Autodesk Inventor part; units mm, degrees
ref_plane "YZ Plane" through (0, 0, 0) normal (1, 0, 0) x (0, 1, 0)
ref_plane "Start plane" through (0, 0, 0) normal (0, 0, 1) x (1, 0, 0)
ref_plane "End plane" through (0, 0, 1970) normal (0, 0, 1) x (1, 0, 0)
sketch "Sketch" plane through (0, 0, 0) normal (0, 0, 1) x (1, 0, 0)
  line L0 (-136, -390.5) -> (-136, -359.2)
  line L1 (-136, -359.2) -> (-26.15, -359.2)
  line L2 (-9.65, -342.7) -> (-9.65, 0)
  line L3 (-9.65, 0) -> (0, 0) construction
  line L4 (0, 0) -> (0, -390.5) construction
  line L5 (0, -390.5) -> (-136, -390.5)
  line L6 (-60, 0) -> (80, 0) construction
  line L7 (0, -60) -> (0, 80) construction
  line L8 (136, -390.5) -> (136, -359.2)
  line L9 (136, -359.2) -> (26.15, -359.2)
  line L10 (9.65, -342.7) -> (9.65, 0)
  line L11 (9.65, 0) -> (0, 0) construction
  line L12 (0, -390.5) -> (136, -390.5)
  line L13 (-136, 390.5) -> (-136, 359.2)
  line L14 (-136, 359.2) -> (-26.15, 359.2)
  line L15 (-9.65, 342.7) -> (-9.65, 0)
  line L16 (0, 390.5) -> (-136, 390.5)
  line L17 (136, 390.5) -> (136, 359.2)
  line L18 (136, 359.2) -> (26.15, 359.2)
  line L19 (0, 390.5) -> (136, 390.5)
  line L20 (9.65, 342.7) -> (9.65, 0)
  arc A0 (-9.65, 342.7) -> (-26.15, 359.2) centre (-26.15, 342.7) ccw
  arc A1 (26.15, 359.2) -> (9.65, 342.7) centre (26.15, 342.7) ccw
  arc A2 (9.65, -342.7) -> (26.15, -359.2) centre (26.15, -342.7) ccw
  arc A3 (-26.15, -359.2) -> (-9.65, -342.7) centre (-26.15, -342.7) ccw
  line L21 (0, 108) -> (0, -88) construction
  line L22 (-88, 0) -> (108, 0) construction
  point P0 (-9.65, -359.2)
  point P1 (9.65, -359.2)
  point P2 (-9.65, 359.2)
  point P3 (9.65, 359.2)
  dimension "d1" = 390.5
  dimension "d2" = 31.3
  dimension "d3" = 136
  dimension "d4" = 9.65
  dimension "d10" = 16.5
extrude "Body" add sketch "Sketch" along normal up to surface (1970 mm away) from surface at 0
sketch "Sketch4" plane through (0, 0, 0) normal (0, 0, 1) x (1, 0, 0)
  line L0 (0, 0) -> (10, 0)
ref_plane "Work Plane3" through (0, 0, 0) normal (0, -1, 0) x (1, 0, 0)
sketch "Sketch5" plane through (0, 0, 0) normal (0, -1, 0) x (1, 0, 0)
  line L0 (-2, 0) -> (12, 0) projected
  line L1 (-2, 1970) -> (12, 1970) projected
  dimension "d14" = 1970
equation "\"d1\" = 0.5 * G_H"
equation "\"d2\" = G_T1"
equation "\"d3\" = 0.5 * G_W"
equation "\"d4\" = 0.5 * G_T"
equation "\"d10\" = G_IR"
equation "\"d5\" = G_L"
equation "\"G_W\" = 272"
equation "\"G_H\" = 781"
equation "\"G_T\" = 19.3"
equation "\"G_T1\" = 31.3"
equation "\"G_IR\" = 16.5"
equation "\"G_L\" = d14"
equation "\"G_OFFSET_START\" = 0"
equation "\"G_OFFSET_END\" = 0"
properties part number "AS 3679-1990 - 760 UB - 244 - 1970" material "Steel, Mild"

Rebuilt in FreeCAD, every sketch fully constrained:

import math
import FreeCAD as App
import Part
import Sketcher
Q = App.Units.Quantity

doc = App.newDocument("Part")
body = doc.addObject("PartDesign::Body", "Body")

sketch1 = doc.addObject("Sketcher::SketchObject", "Sketch")
body.addObject(sketch1)
sketch1.AttachmentSupport = (doc.XY_Plane, [""])
sketch1.MapMode = "FlatFace"
sketch1.addGeometry([
    Part.LineSegment(App.Vector(-136, -359, 0), App.Vector(-136, -390, 0)),
    Part.LineSegment(App.Vector(-136, -390, 0), App.Vector(136, -390, 0)),
    Part.LineSegment(App.Vector(136, -390, 0), App.Vector(136, -359, 0)),
    Part.LineSegment(App.Vector(136, -359, 0), App.Vector(26, -359, 0)),
    Part.ArcOfCircle(Part.Circle(App.Vector(26, -343, 0), App.Vector(0, 0, 1), 16), math.radians(180), math.radians(270)),
    Part.LineSegment(App.Vector(10, -343, 0), App.Vector(10, 343, 0)),
    Part.ArcOfCircle(Part.Circle(App.Vector(26, 343, 0), App.Vector(0, 0, 1), 16), math.radians(90), math.radians(180)),
    Part.LineSegment(App.Vector(26, 359, 0), App.Vector(136, 359, 0)),
    Part.LineSegment(App.Vector(136, 359, 0), App.Vector(136, 390, 0)),
    Part.LineSegment(App.Vector(136, 390, 0), App.Vector(-136, 390, 0)),
    Part.LineSegment(App.Vector(-136, 390, 0), App.Vector(-136, 359, 0)),
    Part.LineSegment(App.Vector(-136, 359, 0), App.Vector(-26, 359, 0)),
    Part.ArcOfCircle(Part.Circle(App.Vector(-26, 343, 0), App.Vector(0, 0, 1), 16), math.radians(0), math.radians(90)),
    Part.LineSegment(App.Vector(-10, 343, 0), App.Vector(-10, -343, 0)),
    Part.ArcOfCircle(Part.Circle(App.Vector(-26, -343, 0), App.Vector(0, 0, 1), 16), math.radians(-90), math.radians(0)),
    Part.LineSegment(App.Vector(-26, -359, 0), App.Vector(-136, -359, 0)),
], False)
sketch1.addConstraint([
    Sketcher.Constraint("Coincident", 0, 2, 1, 1),
    Sketcher.Constraint("Coincident", 1, 2, 2, 1),
    Sketcher.Constraint("Coincident", 2, 2, 3, 1),
    Sketcher.Constraint("Tangent", 3, 2, 4, 2),
    Sketcher.Constraint("Tangent", 4, 1, 5, 1),
    Sketcher.Constraint("Tangent", 5, 2, 6, 2),
    Sketcher.Constraint("Tangent", 6, 1, 7, 1),
    Sketcher.Constraint("Coincident", 7, 2, 8, 1),
    Sketcher.Constraint("Coincident", 8, 2, 9, 1),
    Sketcher.Constraint("Coincident", 9, 2, 10, 1),
    Sketcher.Constraint("Coincident", 10, 2, 11, 1),
    Sketcher.Constraint("Tangent", 11, 2, 12, 2),
    Sketcher.Constraint("Tangent", 12, 1, 13, 1),
    Sketcher.Constraint("Tangent", 13, 2, 14, 2),
    Sketcher.Constraint("Tangent", 14, 1, 15, 1),
    Sketcher.Constraint("Coincident", 15, 2, 0, 1),
    Sketcher.Constraint("Vertical", 0),
    Sketcher.Constraint("Horizontal", 1),
    Sketcher.Constraint("Vertical", 2),
    Sketcher.Constraint("Horizontal", 3),
    Sketcher.Constraint("Vertical", 5),
    Sketcher.Constraint("Horizontal", 7),
    Sketcher.Constraint("Vertical", 8),
    Sketcher.Constraint("Horizontal", 9),
    Sketcher.Constraint("Vertical", 10),
    Sketcher.Constraint("Horizontal", 11),
    Sketcher.Constraint("Vertical", 13),
    Sketcher.Constraint("Horizontal", 15),
    Sketcher.Constraint("Equal", 4, 6),
    Sketcher.Constraint("Equal", 6, 12),
    Sketcher.Constraint("Equal", 12, 14),
    Sketcher.Constraint("Symmetric", 4, 3, 12, 3, -1, 1),
    Sketcher.Constraint("Symmetric", 0, 2, 8, 2, -1, 1),
    Sketcher.Constraint("Symmetric", 7, 2, 10, 2, -2),
    Sketcher.Constraint("Symmetric", 2, 2, 15, 2, -2),
    Sketcher.Constraint("Radius", 4, Q("16.5 mm")),
    Sketcher.Constraint("DistanceY", 0, 2, 0, 1, Q("31.3 mm")),
    Sketcher.Constraint("DistanceX", 0, 2, -1, 1, Q("136 mm")),
    Sketcher.Constraint("DistanceY", 0, 2, -1, 1, Q("390.5 mm")),
    Sketcher.Constraint("DistanceX", -1, 1, 4, 1, Q("9.65 mm")),
])
pad1 = doc.addObject("PartDesign::Pad", "Pad")
body.addObject(pad1)
pad1.Profile = sketch1
pad1.Length = 1970

doc.recompute()
